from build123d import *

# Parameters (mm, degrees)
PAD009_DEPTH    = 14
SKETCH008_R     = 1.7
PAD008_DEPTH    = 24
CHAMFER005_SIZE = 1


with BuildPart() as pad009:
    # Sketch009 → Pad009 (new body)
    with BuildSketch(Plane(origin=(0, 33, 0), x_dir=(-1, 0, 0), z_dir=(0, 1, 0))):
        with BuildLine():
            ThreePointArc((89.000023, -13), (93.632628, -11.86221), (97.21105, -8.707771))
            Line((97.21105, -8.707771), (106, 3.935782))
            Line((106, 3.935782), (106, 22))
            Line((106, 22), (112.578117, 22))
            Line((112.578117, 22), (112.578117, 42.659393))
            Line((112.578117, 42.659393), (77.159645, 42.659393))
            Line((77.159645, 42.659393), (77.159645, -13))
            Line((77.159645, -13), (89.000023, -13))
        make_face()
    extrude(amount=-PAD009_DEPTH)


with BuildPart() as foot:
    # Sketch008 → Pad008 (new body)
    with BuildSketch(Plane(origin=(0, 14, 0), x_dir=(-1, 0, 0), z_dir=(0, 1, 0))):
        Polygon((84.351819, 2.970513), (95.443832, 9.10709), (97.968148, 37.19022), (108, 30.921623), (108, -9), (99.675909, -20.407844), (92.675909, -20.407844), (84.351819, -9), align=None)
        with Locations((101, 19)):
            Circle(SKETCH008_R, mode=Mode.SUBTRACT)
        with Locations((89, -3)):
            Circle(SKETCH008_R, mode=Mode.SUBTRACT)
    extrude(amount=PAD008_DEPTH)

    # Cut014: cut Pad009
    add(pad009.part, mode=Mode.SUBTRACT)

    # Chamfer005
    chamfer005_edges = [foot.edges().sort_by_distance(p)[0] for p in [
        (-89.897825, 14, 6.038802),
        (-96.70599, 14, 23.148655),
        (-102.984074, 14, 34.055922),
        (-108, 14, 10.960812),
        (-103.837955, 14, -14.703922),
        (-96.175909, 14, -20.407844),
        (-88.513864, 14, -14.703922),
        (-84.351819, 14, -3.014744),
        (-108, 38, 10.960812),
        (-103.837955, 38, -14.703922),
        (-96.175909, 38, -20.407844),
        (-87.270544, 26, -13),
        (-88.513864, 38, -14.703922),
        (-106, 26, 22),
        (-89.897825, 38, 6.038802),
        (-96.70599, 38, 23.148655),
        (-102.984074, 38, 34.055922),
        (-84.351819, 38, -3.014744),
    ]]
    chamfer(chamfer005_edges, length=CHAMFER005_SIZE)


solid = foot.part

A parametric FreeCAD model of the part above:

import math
import FreeCAD as App
import Part
import Sketcher
Q = App.Units.Quantity


def edges_at(feature, points):
    """Names of the edges that pass closest to the given points."""
    edges = feature.Shape.Edges
    near = lambda p: min(range(len(edges)), key=lambda i: edges[i].distToShape(Part.Vertex(*p))[0])
    return sorted({f"Edge{near(p) + 1}" for p in points})

doc = App.newDocument("Part")
params = doc.addObject("Spreadsheet::Sheet", "Params")
for row, (alias, value) in enumerate([
    ("pad1_length", "14 mm"),
    ("sketch2_diameter", "3.4 mm"),
    ("sketch2_width", "7 mm"),
    ("pad2_length", "24 mm"),
    ("chamfer_size", "1 mm"),
], start=1):
    params.set(f"A{row}", alias)
    params.set(f"B{row}", "=" + value)
    params.setAlias(f"B{row}", alias)

body = doc.addObject("PartDesign::Body", "Body")

# Sketch on XZ plane
sketch1 = body.newObject("Sketcher::SketchObject", "Sketch")
sketch1.AttachmentSupport = (doc.getObject("XZ_Plane"), [""])
sketch1.MapMode = "FlatFace"
sketch1.AttachmentOffset = App.Placement(App.Vector(0, 0, -33), App.Rotation())
sketch1.addGeometry(Part.ArcOfCircle(Part.Circle(App.Vector(-89.000002, -3.000005, 0), App.Vector(0, 0, 1), 9.999995), math.radians(-145.195582), math.radians(-90.00012)), False)
sketch1.addGeometry(Part.LineSegment(App.Vector(-97.21105, -8.707771, 0), App.Vector(-106, 3.935782, 0)), False)
sketch1.addGeometry(Part.LineSegment(App.Vector(-106, 3.935782, 0), App.Vector(-106, 22, 0)), False)
sketch1.addGeometry(Part.LineSegment(App.Vector(-106, 22, 0), App.Vector(-112.578117, 22, 0)), False)
sketch1.addGeometry(Part.LineSegment(App.Vector(-112.578117, 22, 0), App.Vector(-112.578117, 42.659393, 0)), False)
sketch1.addGeometry(Part.LineSegment(App.Vector(-112.578117, 42.659393, 0), App.Vector(-77.159645, 42.659393, 0)), False)
sketch1.addGeometry(Part.LineSegment(App.Vector(-77.159645, 42.659393, 0), App.Vector(-77.159645, -13, 0)), False)
sketch1.addGeometry(Part.LineSegment(App.Vector(-77.159645, -13, 0), App.Vector(-89.000023, -13, 0)), False)
sketch1.addConstraint(Sketcher.Constraint("Tangent", 0, 1, 1, 1))
sketch1.addConstraint(Sketcher.Constraint("Coincident", 1, 2, 2, 1))
sketch1.addConstraint(Sketcher.Constraint("Coincident", 2, 2, 3, 1))
sketch1.addConstraint(Sketcher.Constraint("Coincident", 3, 2, 4, 1))
sketch1.addConstraint(Sketcher.Constraint("Coincident", 4, 2, 5, 1))
sketch1.addConstraint(Sketcher.Constraint("Coincident", 5, 2, 6, 1))
sketch1.addConstraint(Sketcher.Constraint("Coincident", 6, 2, 7, 1))
sketch1.addConstraint(Sketcher.Constraint("Coincident", 7, 2, 0, 2))
sketch1.addConstraint(Sketcher.Constraint("Vertical", 2))
sketch1.addConstraint(Sketcher.Constraint("Horizontal", 3))
sketch1.addConstraint(Sketcher.Constraint("Vertical", 4))
sketch1.addConstraint(Sketcher.Constraint("Horizontal", 5))
sketch1.addConstraint(Sketcher.Constraint("Vertical", 6))
sketch1.addConstraint(Sketcher.Constraint("Horizontal", 7))
sketch1.addConstraint(Sketcher.Constraint("DistanceX", 1, 2, -1, 1, 106.0))
sketch1.addConstraint(Sketcher.Constraint("DistanceY", -1, 1, 2, 2, 22.0))
sketch1.addConstraint(Sketcher.Constraint("DistanceY", 6, 2, -1, 1, 13.0))
sketch1.addConstraint(Sketcher.Constraint("Radius", 0, 9.999995))
sketch1.addConstraint(Sketcher.Constraint("DistanceX", 7, 2, 7, 1, 11.840378))
sketch1.addConstraint(Sketcher.Constraint("DistanceY", 2, 1, 2, 2, 18.064218))
sketch1.addConstraint(Sketcher.Constraint("DistanceY", 0, 3, 4, 2, 45.659398))
sketch1.addConstraint(Sketcher.Constraint("DistanceX", 3, 2, 3, 1, 6.578117))
sketch1.addConstraint(Sketcher.Constraint("DistanceX", 5, 1, 5, 2, 35.418472))
sketch1.addConstraint(Sketcher.Constraint("DistanceX", 0, 1, -1, 1, 97.21105))
pad1 = body.newObject("PartDesign::Pad", "Pad")
pad1.Profile = sketch1
pad1.setExpression("Length", "Params.pad1_length")
body2 = doc.addObject("PartDesign::Body", "Body001")

# Sketch on XZ plane
sketch2 = body2.newObject("Sketcher::SketchObject", "Sketch001")
sketch2.AttachmentSupport = (doc.getObject("XZ_Plane001"), [""])
sketch2.MapMode = "FlatFace"
sketch2.AttachmentOffset = App.Placement(App.Vector(0, 0, -14), App.Rotation())
sketch2.addGeometry(Part.LineSegment(App.Vector(-95.443832, 9.10709, 0), App.Vector(-84.351819, 2.970513, 0)), False)
sketch2.addGeometry(Part.LineSegment(App.Vector(-84.351819, 2.970513, 0), App.Vector(-84.351819, -9, 0)), False)
sketch2.addGeometry(Part.LineSegment(App.Vector(-84.351819, -9, 0), App.Vector(-92.675909, -20.407844, 0)), False)
sketch2.addGeometry(Part.LineSegment(App.Vector(-92.675909, -20.407844, 0), App.Vector(-99.675909, -20.407844, 0)), False)
sketch2.addGeometry(Part.LineSegment(App.Vector(-99.675909, -20.407844, 0), App.Vector(-108, -9, 0)), False)
sketch2.addGeometry(Part.LineSegment(App.Vector(-108, -9, 0), App.Vector(-108, 30.921623, 0)), False)
sketch2.addGeometry(Part.LineSegment(App.Vector(-108, 30.921623, 0), App.Vector(-97.968148, 37.19022, 0)), False)
sketch2.addGeometry(Part.LineSegment(App.Vector(-97.968148, 37.19022, 0), App.Vector(-95.443832, 9.10709, 0)), False)
sketch2.addGeometry(Part.Circle(App.Vector(-89, -3, 0), App.Vector(0, 0, 1), 1.7), False)
sketch2.addGeometry(Part.Circle(App.Vector(-101, 19, 0), App.Vector(0, 0, 1), 1.7), False)
sketch2.addConstraint(Sketcher.Constraint("Coincident", 0, 2, 1, 1))
sketch2.addConstraint(Sketcher.Constraint("Coincident", 1, 2, 2, 1))
sketch2.addConstraint(Sketcher.Constraint("Coincident", 2, 2, 3, 1))
sketch2.addConstraint(Sketcher.Constraint("Coincident", 3, 2, 4, 1))
sketch2.addConstraint(Sketcher.Constraint("Coincident", 4, 2, 5, 1))
sketch2.addConstraint(Sketcher.Constraint("Coincident", 5, 2, 6, 1))
sketch2.addConstraint(Sketcher.Constraint("Coincident", 6, 2, 7, 1))
sketch2.addConstraint(Sketcher.Constraint("Coincident", 7, 2, 0, 1))
sketch2.addConstraint(Sketcher.Constraint("Vertical", 1))
sketch2.addConstraint(Sketcher.Constraint("Horizontal", 3))
sketch2.addConstraint(Sketcher.Constraint("Vertical", 5))
sketch2.addConstraint(Sketcher.Constraint("Equal", 8, 9))
sketch2.addConstraint(Sketcher.Constraint("Horizontal", 1, 2, 4, 2))
sketch2.addConstraint(Sketcher.Constraint("Equal", 2, 4))
sketch2.addConstraint(Sketcher.Constraint("Diameter", 8, 3.4))
sketch2.addConstraint(Sketcher.Constraint("DistanceX", 3, 2, 3, 1, 7.0))
sketch2.addConstraint(Sketcher.Constraint("Angle", 6, Q("32.000001 deg")))
sketch2.addConstraint(Sketcher.Constraint("DistanceX", 8, 3, -1, 1, 89.0))
sketch2.addConstraint(Sketcher.Constraint("DistanceY", 8, 3, -1, 1, 3.0))
sketch2.addConstraint(Sketcher.Constraint("DistanceX", 9, 3, -1, 1, 101.0))
sketch2.addConstraint(Sketcher.Constraint("DistanceY", -1, 1, 9, 3, 19.0))
sketch2.addConstraint(Sketcher.Constraint("DistanceY", 1, 2, -1, 1, 9.0))
sketch2.addConstraint(Sketcher.Constraint("DistanceX", 4, 2, -1, 1, 108.0))
sketch2.addConstraint(Sketcher.Constraint("Distance", 0, 12.676369))
sketch2.addConstraint(Sketcher.Constraint("DistanceY", 1, 2, 1, 1, 11.970513))
sketch2.addConstraint(Sketcher.Constraint("DistanceY", 5, 1, 5, 2, 39.921623))
sketch2.addConstraint(Sketcher.Constraint("DistanceX", 0, 2, -1, 1, 84.351819))
sketch2.addConstraint(Sketcher.Constraint("DistanceX", 6, 2, -1, 1, 97.968148))
sketch2.addConstraint(Sketcher.Constraint("DistanceX", 7, 2, -1, 1, 95.443832))
sketch2.addConstraint(Sketcher.Constraint("Distance", 2, 14.121947))
sketch2.setExpression("Constraints[14]", "Params.sketch2_diameter")
sketch2.setExpression("Constraints[15]", "Params.sketch2_width")
pad2 = body2.newObject("PartDesign::Pad", "Pad001")
pad2.Profile = sketch2
pad2.setExpression("Length", "Params.pad2_length")
pad2.Reversed = True
doc.recompute()

boolean = body2.newObject("PartDesign::Boolean", "Boolean")
boolean.Type = "Cut"
boolean.addObjects([body])
doc.recompute()

chamfer = body2.newObject("PartDesign::Chamfer", "Chamfer")
chamfer.Base = (boolean, edges_at(boolean, [
    (-89.898, 14, 6.039),
    (-96.706, 14, 23.149),
    (-102.984, 14, 34.056),
    (-108, 14, 10.961),
    (-103.838, 14, -14.704),
    (-96.176, 14, -20.408),
    (-88.514, 14, -14.704),
    (-84.352, 14, -3.015),
    (-108, 38, 10.961),
    (-103.838, 38, -14.704),
    (-96.176, 38, -20.408),
    (-87.271, 26, -13),
    (-88.514, 38, -14.704),
    (-106, 26, 22),
    (-89.898, 38, 6.039),
    (-96.706, 38, 23.149),
    (-102.984, 38, 34.056),
    (-84.352, 38, -3.015),
]))
chamfer.setExpression("Size", "Params.chamfer_size")

doc.recompute()
